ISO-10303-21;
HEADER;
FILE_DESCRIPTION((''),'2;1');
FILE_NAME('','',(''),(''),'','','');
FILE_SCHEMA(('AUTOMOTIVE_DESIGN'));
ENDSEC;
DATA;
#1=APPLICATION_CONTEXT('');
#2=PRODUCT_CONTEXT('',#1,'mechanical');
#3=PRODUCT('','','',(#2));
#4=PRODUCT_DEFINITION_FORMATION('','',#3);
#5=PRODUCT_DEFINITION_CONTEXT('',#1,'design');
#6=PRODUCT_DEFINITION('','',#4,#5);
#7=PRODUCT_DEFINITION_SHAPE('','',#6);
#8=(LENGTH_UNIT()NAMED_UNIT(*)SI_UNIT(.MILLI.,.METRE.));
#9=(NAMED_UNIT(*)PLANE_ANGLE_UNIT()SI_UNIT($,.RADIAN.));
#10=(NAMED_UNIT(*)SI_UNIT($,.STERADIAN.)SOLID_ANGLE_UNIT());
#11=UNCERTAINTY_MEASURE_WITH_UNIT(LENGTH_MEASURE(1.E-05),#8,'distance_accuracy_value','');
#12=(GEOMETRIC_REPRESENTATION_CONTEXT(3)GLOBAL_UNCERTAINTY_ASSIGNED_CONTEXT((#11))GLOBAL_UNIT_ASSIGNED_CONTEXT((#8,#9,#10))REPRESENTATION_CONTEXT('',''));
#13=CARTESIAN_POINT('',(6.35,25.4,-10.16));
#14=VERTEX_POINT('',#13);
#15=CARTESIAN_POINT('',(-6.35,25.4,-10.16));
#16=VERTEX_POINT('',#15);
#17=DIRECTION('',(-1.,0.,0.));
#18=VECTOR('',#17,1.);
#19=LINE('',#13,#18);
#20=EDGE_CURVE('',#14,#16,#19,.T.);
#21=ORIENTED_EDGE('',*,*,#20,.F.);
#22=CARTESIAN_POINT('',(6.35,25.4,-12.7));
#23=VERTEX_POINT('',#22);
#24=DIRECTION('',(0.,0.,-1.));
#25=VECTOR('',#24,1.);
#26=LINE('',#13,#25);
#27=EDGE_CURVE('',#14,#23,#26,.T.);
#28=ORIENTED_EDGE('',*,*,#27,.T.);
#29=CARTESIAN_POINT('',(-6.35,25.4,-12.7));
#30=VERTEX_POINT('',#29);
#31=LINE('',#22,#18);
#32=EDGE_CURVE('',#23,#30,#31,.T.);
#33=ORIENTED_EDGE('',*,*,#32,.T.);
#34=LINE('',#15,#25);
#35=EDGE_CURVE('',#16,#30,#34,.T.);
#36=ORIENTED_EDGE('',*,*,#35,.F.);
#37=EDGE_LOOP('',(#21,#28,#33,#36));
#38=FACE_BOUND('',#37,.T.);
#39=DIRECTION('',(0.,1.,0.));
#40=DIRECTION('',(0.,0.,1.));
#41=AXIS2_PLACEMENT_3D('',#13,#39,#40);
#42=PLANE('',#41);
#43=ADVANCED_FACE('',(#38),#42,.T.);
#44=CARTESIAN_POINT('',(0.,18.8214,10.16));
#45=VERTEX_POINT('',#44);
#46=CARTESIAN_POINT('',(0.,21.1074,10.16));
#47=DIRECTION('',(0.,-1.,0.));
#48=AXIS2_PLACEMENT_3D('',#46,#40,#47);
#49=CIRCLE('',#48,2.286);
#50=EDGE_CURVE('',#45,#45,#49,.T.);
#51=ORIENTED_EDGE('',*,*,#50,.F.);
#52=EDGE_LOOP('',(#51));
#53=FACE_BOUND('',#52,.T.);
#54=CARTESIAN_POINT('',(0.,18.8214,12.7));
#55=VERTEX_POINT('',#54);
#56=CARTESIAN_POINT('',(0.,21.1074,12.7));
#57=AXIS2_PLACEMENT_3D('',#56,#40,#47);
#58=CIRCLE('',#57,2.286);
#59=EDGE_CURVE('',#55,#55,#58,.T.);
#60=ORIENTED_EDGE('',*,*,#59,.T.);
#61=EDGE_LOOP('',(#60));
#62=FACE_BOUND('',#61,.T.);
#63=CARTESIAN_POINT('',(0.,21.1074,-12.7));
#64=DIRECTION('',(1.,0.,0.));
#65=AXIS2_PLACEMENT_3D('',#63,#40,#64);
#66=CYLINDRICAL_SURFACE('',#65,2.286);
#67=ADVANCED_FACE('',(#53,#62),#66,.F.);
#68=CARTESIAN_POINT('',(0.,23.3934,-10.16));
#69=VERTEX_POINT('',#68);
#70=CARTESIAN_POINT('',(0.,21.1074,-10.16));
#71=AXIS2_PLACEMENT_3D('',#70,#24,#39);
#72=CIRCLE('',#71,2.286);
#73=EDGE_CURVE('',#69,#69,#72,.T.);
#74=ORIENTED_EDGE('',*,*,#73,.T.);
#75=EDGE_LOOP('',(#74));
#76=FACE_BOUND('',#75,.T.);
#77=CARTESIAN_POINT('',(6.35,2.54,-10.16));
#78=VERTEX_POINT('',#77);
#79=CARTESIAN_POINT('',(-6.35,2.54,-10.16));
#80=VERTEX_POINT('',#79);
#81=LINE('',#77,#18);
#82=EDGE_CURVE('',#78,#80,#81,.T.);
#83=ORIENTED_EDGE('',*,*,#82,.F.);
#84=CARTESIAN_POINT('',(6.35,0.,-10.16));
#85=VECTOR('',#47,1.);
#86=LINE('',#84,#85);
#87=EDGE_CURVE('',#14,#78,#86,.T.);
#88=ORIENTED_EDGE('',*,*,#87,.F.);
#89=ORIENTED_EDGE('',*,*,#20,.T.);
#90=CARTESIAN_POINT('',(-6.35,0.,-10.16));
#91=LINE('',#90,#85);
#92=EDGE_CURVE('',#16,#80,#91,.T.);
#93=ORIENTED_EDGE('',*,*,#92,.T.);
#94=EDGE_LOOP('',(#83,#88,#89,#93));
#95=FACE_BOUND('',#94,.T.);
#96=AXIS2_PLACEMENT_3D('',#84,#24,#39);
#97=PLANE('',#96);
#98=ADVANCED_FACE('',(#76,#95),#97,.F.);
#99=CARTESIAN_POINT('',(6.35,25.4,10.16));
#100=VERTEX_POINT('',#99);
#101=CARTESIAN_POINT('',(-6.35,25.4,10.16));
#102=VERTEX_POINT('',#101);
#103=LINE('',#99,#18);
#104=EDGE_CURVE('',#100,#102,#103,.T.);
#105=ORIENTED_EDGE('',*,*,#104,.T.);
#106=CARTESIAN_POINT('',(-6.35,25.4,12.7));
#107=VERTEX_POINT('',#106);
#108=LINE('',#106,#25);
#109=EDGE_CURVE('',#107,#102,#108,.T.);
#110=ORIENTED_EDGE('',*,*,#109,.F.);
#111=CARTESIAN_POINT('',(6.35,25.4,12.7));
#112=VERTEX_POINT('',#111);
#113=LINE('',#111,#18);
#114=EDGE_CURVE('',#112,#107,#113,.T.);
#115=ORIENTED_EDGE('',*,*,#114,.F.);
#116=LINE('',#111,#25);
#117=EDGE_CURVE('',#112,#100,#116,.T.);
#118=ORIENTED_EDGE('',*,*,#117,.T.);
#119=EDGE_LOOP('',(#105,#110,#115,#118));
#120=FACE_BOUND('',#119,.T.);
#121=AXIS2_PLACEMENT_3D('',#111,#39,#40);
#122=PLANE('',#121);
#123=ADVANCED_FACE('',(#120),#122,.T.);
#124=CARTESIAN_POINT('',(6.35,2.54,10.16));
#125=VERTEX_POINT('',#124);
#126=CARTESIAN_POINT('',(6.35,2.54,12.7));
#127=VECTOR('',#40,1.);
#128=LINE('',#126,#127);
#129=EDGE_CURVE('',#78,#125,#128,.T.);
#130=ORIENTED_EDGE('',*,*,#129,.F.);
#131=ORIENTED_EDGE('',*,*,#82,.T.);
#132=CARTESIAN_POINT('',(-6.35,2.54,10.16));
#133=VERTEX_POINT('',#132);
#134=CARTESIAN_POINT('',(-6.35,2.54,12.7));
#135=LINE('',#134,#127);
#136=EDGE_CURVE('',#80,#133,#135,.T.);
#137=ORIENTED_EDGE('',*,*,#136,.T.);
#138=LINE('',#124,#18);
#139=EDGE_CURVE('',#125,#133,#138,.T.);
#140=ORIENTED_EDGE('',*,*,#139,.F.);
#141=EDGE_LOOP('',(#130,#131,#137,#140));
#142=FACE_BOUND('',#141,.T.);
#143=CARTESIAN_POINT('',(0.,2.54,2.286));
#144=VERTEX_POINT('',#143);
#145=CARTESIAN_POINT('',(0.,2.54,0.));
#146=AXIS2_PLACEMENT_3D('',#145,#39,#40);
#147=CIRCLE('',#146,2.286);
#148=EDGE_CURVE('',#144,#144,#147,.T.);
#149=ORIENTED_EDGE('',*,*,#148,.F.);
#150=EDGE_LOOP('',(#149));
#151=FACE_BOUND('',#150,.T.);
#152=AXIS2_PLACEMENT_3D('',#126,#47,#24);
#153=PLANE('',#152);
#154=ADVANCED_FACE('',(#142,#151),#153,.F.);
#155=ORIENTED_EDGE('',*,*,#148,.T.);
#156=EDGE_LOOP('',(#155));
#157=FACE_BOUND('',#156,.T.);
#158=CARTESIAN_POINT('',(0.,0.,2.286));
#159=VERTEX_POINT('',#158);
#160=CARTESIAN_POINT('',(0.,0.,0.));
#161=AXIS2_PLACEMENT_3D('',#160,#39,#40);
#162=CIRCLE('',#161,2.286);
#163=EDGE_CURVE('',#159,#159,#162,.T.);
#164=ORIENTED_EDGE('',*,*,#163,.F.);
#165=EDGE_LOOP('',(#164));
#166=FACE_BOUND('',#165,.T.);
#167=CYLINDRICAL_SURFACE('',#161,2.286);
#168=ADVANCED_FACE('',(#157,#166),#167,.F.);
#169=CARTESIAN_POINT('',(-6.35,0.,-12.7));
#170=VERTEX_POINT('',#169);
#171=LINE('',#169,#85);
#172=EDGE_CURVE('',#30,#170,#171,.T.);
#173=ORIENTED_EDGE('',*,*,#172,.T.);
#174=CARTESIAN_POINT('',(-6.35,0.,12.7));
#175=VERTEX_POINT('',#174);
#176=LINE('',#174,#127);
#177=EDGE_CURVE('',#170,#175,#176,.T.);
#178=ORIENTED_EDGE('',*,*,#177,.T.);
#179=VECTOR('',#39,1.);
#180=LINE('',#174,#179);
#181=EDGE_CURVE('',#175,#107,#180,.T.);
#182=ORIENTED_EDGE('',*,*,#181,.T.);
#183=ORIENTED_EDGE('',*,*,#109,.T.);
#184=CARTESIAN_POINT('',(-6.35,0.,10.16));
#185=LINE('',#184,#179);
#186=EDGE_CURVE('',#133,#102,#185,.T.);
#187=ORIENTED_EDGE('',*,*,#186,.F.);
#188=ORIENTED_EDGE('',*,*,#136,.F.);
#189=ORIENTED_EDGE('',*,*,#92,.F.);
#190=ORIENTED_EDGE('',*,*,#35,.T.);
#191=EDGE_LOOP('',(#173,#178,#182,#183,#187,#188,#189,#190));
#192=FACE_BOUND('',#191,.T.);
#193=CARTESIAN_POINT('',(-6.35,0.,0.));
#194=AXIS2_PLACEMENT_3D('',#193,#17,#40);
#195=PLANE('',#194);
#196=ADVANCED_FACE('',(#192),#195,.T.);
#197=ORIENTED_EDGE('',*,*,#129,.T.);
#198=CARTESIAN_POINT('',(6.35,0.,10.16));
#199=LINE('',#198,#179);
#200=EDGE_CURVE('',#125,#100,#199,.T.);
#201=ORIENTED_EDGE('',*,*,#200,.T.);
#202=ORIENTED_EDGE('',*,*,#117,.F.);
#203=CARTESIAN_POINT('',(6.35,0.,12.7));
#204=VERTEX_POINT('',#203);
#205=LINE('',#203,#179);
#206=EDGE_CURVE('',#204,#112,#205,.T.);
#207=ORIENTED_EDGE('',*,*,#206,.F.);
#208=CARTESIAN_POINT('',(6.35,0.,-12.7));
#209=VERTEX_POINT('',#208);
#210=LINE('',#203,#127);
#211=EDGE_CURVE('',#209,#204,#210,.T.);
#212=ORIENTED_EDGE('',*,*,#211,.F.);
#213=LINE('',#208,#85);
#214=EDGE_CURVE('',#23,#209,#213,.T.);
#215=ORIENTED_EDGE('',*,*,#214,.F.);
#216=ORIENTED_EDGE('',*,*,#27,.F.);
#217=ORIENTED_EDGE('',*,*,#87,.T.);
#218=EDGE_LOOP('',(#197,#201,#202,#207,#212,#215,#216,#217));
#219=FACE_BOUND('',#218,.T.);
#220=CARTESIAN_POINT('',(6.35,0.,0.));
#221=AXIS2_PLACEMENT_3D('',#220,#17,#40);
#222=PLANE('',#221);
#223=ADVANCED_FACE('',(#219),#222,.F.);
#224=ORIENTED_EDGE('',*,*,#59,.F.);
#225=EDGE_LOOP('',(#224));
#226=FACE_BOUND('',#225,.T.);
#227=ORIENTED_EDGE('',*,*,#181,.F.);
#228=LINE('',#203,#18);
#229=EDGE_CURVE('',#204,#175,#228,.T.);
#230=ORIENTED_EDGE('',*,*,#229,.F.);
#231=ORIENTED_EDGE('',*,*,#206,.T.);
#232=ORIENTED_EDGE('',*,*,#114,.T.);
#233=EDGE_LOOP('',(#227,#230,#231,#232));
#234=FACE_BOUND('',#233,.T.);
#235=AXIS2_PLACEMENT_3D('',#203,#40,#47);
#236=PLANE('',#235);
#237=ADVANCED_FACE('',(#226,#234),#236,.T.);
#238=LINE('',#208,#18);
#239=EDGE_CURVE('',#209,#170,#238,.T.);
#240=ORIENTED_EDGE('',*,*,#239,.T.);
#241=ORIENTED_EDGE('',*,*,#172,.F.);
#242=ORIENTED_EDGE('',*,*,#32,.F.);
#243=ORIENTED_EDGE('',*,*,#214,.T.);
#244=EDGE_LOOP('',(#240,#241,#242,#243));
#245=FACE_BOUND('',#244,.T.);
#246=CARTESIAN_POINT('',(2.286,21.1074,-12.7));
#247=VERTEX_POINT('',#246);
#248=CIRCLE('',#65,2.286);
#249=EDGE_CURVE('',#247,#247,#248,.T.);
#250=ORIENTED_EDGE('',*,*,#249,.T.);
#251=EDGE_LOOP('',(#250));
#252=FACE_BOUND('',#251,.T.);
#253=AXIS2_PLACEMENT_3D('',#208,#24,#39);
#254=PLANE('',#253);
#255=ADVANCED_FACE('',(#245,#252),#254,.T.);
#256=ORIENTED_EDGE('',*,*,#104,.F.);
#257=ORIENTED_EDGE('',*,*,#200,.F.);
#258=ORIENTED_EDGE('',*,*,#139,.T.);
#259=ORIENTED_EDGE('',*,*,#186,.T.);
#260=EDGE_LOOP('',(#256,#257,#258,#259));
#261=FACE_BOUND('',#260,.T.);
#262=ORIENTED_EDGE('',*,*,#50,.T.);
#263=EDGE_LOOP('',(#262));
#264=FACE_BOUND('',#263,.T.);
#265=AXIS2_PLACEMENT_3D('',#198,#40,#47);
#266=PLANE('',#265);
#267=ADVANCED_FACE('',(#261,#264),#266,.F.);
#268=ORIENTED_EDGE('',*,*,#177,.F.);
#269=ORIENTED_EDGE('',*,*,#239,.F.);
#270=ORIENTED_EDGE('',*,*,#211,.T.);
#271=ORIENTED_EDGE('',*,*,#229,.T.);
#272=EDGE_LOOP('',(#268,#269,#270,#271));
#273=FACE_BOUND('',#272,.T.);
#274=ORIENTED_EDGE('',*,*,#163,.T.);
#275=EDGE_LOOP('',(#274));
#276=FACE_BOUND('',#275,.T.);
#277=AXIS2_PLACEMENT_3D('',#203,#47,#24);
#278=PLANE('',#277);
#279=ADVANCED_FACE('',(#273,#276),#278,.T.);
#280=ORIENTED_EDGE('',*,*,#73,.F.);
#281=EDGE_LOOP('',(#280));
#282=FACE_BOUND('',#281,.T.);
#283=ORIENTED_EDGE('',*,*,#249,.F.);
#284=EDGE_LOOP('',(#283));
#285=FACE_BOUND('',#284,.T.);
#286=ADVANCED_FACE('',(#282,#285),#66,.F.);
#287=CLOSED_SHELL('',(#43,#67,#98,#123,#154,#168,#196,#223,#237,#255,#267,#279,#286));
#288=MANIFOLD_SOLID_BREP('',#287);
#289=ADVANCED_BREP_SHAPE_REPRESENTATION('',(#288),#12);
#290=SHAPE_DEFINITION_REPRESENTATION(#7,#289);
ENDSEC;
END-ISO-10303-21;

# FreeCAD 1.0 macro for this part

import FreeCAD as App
import Part
import Sketcher

V = App.Vector
Q = App.Units.Quantity

doc = App.newDocument("Part")
body = doc.addObject("PartDesign::Body", "Body")

# Sketch on YZ plane
sketch1 = doc.addObject("Sketcher::SketchObject", "Sketch")
body.addObject(sketch1)
sketch1.AttachmentSupport = (doc.YZ_Plane, [""])
sketch1.MapMode = "FlatFace"
sketch1.addGeometry(Part.LineSegment(V(25.4, 12.7, 0), V(0, 12.7, 0)), False)
sketch1.addGeometry(Part.LineSegment(V(0, 12.7, 0), V(0, -12.7, 0)), False)
sketch1.addGeometry(Part.LineSegment(V(0, -12.7, 0), V(25.4, -12.7, 0)), False)
sketch1.addGeometry(Part.LineSegment(V(25.4, -12.7, 0), V(25.4, -10.2, 0)), False)
sketch1.addGeometry(Part.LineSegment(V(25.4, -10.2, 0), V(2.5, -10.2, 0)), False)
sketch1.addGeometry(Part.LineSegment(V(2.5, -10.2, 0), V(2.5, 10.2, 0)), False)
sketch1.addGeometry(Part.LineSegment(V(2.5, 10.2, 0), V(25.4, 10.2, 0)), False)
sketch1.addGeometry(Part.LineSegment(V(25.4, 10.2, 0), V(25.4, 12.7, 0)), False)
sketch1.addConstraint(Sketcher.Constraint("Coincident", 0, 2, 1, 1))
sketch1.addConstraint(Sketcher.Constraint("Coincident", 1, 2, 2, 1))
sketch1.addConstraint(Sketcher.Constraint("Coincident", 2, 2, 3, 1))
sketch1.addConstraint(Sketcher.Constraint("Coincident", 3, 2, 4, 1))
sketch1.addConstraint(Sketcher.Constraint("Coincident", 4, 2, 5, 1))
sketch1.addConstraint(Sketcher.Constraint("Coincident", 5, 2, 6, 1))
sketch1.addConstraint(Sketcher.Constraint("Coincident", 6, 2, 7, 1))
sketch1.addConstraint(Sketcher.Constraint("Coincident", 7, 2, 0, 1))
sketch1.addConstraint(Sketcher.Constraint("Horizontal", 0))
sketch1.addConstraint(Sketcher.Constraint("Vertical", 1))
sketch1.addConstraint(Sketcher.Constraint("Horizontal", 2))
sketch1.addConstraint(Sketcher.Constraint("Vertical", 3))
sketch1.addConstraint(Sketcher.Constraint("Horizontal", 4))
sketch1.addConstraint(Sketcher.Constraint("Vertical", 5))
sketch1.addConstraint(Sketcher.Constraint("Horizontal", 6))
sketch1.addConstraint(Sketcher.Constraint("Vertical", 7))
sketch1.addConstraint(Sketcher.Constraint("Symmetric", 0, 2, 1, 2, -1, 1))
sketch1.addConstraint(Sketcher.Constraint("Symmetric", 3, 2, 6, 2, -1))
sketch1.addConstraint(Sketcher.Constraint("Equal", 2, 1))
sketch1.addConstraint(Sketcher.Constraint("DistanceX", 0, 2, 0, 1, Q("1 in")))
sketch1.addConstraint(Sketcher.Constraint("DistanceX", 4, 2, 4, 1, Q("0.9 in")))
sketch1.addConstraint(Sketcher.Constraint("DistanceY", 3, 1, 3, 2, Q("0.1 in")))
pad1 = doc.addObject("PartDesign::Pad", "Pad")
body.addObject(pad1)
pad1.Profile = sketch1
pad1.Length = Q("0.5 in")
pad1.Midplane = True

# Sketch on XY plane
sketch2 = doc.addObject("Sketcher::SketchObject", "Sketch001")
body.addObject(sketch2)
sketch2.AttachmentSupport = (doc.XY_Plane, [""])
sketch2.MapMode = "FlatFace"
sketch2.AttachmentOffset = App.Placement(V(0, 0, 0.5 * 25.4), App.Rotation())
sketch2.addGeometry(Part.Circle(V(0, 21.1, 0), V(0, 0, 1), 2.3), False)
sketch2.addConstraint(Sketcher.Constraint("PointOnObject", 0, 3, -2))
sketch2.addConstraint(Sketcher.Constraint("Diameter", 0, Q("0.18 in")))
sketch2.addConstraint(Sketcher.Constraint("DistanceY", -1, 1, 0, 3, Q("0.831 in")))
pocket1 = doc.addObject("PartDesign::Pocket", "Pocket")
body.addObject(pocket1)
pocket1.Profile = sketch2
pocket1.Type = "ThroughAll"
pocket1.Midplane = True

# Sketch on XZ plane
sketch3 = doc.addObject("Sketcher::SketchObject", "Sketch002")
body.addObject(sketch3)
sketch3.AttachmentSupport = (doc.XZ_Plane, [""])
sketch3.MapMode = "FlatFace"
sketch3.AttachmentOffset = App.Placement(V(0, 0, -0.1 * 25.4), App.Rotation())
sketch3.addGeometry(Part.Circle(V(0, 0, 0), V(0, 0, 1), 2.3), False)
sketch3.addConstraint(Sketcher.Constraint("Coincident", 0, 3, -1, 1))
sketch3.addConstraint(Sketcher.Constraint("Diameter", 0, Q("0.18 in")))
pocket2 = doc.addObject("PartDesign::Pocket", "Pocket001")
body.addObject(pocket2)
pocket2.Profile = sketch3
pocket2.Type = "ThroughAll"
pocket2.Reversed = True

doc.recompute()
